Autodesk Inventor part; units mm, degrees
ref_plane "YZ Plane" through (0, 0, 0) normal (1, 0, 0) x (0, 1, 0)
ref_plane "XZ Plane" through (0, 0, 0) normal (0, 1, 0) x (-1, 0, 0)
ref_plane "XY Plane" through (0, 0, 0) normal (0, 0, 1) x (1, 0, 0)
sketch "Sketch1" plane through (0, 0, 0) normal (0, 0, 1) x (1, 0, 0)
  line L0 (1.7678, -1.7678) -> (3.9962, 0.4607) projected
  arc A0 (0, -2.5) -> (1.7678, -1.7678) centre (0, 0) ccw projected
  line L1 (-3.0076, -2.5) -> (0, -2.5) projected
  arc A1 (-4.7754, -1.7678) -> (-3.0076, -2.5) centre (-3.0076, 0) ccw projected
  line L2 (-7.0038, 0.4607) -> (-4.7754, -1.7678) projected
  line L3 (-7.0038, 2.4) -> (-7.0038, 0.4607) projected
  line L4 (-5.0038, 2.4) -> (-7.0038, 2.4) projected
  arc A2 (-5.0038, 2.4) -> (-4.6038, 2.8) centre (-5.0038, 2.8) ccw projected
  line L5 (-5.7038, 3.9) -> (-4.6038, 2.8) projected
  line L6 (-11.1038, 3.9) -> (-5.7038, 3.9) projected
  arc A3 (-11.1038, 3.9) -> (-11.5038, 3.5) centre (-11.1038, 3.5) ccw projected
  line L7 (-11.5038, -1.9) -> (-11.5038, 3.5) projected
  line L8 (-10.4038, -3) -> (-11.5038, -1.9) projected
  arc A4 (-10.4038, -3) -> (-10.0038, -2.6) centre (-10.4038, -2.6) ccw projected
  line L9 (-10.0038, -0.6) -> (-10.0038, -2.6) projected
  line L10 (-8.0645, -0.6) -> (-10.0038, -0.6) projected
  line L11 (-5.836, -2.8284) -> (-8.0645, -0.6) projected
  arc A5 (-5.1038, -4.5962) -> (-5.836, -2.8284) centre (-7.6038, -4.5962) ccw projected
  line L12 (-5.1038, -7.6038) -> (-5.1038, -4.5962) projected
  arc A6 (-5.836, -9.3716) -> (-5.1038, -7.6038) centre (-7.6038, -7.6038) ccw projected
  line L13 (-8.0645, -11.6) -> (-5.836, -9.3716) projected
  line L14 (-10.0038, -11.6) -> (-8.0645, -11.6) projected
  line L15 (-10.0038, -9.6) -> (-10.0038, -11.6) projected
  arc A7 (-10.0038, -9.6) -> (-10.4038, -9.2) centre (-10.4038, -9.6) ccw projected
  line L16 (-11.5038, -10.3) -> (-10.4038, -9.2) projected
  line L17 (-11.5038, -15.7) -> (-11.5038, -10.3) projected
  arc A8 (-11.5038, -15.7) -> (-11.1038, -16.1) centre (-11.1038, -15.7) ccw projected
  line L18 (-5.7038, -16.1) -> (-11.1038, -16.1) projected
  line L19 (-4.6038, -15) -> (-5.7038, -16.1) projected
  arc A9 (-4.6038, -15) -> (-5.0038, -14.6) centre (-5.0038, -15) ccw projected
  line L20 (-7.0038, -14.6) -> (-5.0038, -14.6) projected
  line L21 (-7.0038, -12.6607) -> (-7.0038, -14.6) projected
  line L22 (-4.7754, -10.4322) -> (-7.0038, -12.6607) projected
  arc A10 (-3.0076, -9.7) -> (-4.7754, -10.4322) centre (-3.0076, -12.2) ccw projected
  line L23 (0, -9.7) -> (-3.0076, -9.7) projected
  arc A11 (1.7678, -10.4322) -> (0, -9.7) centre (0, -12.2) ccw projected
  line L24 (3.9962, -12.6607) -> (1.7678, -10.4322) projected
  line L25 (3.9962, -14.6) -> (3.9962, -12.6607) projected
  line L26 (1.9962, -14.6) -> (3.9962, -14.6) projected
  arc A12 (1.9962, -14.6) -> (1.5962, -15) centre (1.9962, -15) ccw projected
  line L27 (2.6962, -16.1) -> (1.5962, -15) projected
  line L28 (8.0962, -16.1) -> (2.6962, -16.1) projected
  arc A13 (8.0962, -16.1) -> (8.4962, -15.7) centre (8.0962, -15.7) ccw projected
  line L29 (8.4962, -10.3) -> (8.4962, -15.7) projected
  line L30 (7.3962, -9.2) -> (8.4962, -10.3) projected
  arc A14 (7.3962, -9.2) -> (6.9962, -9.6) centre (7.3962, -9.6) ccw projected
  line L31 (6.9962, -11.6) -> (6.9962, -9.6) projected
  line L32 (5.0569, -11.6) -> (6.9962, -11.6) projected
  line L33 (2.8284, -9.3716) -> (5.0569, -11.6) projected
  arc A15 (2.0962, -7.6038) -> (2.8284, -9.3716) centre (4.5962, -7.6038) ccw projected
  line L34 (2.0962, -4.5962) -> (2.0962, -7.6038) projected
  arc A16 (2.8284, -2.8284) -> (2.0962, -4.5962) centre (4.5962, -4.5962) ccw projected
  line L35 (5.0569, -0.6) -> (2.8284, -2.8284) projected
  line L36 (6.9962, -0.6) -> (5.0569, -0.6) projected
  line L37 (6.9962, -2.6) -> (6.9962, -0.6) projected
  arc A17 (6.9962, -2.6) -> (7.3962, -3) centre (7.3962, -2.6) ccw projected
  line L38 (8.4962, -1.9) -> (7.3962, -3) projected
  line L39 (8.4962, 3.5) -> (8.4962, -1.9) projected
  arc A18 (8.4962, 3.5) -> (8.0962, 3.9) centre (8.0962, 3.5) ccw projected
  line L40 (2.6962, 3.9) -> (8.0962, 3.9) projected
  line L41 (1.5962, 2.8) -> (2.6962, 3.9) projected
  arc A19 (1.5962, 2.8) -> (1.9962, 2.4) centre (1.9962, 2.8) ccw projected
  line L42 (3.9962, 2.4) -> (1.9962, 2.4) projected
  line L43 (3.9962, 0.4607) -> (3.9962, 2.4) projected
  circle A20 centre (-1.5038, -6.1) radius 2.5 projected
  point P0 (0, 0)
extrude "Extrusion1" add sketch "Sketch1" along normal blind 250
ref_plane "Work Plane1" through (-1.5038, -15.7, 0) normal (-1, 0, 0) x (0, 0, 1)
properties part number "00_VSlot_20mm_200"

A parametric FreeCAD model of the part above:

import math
import FreeCAD as App
import Part
import Sketcher
Q = App.Units.Quantity

doc = App.newDocument("Part")
body = doc.addObject("PartDesign::Body", "Body")

# Sketch on XY plane
sketch1 = body.newObject("Sketcher::SketchObject", "Sketch")
sketch1.AttachmentSupport = (doc.getObject("XY_Plane"), [""])
sketch1.MapMode = "FlatFace"
sketch1.addGeometry(Part.LineSegment(App.Vector(3.9962, 0.4607, 0), App.Vector(1.7678, -1.7678, 0)), False)
sketch1.addGeometry(Part.ArcOfCircle(Part.Circle(App.Vector(0, 0, 0), App.Vector(0, 0, 1), 2.5), math.radians(-90), math.radians(-45)), False)
sketch1.addGeometry(Part.LineSegment(App.Vector(0, -2.5, 0), App.Vector(-3.0076, -2.5, 0)), False)
sketch1.addGeometry(Part.ArcOfCircle(Part.Circle(App.Vector(-3.0076, 0, 0), App.Vector(0, 0, 1), 2.500047), math.radians(-135), math.radians(-90)), False)
sketch1.addGeometry(Part.LineSegment(App.Vector(-4.7754, -1.7678, 0), App.Vector(-7.0038, 0.4607, 0)), False)
sketch1.addGeometry(Part.LineSegment(App.Vector(-7.0038, 0.4607, 0), App.Vector(-7.0038, 2.4, 0)), False)
sketch1.addGeometry(Part.LineSegment(App.Vector(-7.0038, 2.4, 0), App.Vector(-5.0038, 2.4, 0)), False)
sketch1.addGeometry(Part.ArcOfCircle(Part.Circle(App.Vector(-5.0038, 2.8, 0), App.Vector(0, 0, 1), 0.4), math.radians(-90), math.radians(0)), False)
sketch1.addGeometry(Part.LineSegment(App.Vector(-4.6038, 2.8, 0), App.Vector(-5.7038, 3.9, 0)), False)
sketch1.addGeometry(Part.LineSegment(App.Vector(-5.7038, 3.9, 0), App.Vector(-11.1038, 3.9, 0)), False)
sketch1.addGeometry(Part.ArcOfCircle(Part.Circle(App.Vector(-11.1038, 3.5, 0), App.Vector(0, 0, 1), 0.4), math.radians(90), math.radians(180)), False)
sketch1.addGeometry(Part.LineSegment(App.Vector(-11.5038, 3.5, 0), App.Vector(-11.5038, -1.9, 0)), False)
sketch1.addGeometry(Part.LineSegment(App.Vector(-11.5038, -1.9, 0), App.Vector(-10.4038, -3, 0)), False)
sketch1.addGeometry(Part.ArcOfCircle(Part.Circle(App.Vector(-10.4038, -2.6, 0), App.Vector(0, 0, 1), 0.4), math.radians(-90), math.radians(0)), False)
sketch1.addGeometry(Part.LineSegment(App.Vector(-10.0038, -2.6, 0), App.Vector(-10.0038, -0.6, 0)), False)
sketch1.addGeometry(Part.LineSegment(App.Vector(-10.0038, -0.6, 0), App.Vector(-8.0645, -0.6, 0)), False)
sketch1.addGeometry(Part.LineSegment(App.Vector(-8.0645, -0.6, 0), App.Vector(-5.836, -2.8284, 0)), False)
sketch1.addGeometry(Part.ArcOfCircle(Part.Circle(App.Vector(-7.6038, -4.5962, 0), App.Vector(0, 0, 1), 2.5), math.radians(0), math.radians(45)), False)
sketch1.addGeometry(Part.LineSegment(App.Vector(-5.1038, -4.5962, 0), App.Vector(-5.1038, -7.6038, 0)), False)
sketch1.addGeometry(Part.ArcOfCircle(Part.Circle(App.Vector(-7.6038, -7.6038, 0), App.Vector(0, 0, 1), 2.500047), math.radians(-45), math.radians(0)), False)
sketch1.addGeometry(Part.LineSegment(App.Vector(-5.836, -9.3716, 0), App.Vector(-8.0645, -11.6, 0)), False)
sketch1.addGeometry(Part.LineSegment(App.Vector(-8.0645, -11.6, 0), App.Vector(-10.0038, -11.6, 0)), False)
sketch1.addGeometry(Part.LineSegment(App.Vector(-10.0038, -11.6, 0), App.Vector(-10.0038, -9.6, 0)), False)
sketch1.addGeometry(Part.ArcOfCircle(Part.Circle(App.Vector(-10.4038, -9.6, 0), App.Vector(0, 0, 1), 0.4), math.radians(0), math.radians(90)), False)
sketch1.addGeometry(Part.LineSegment(App.Vector(-10.4038, -9.2, 0), App.Vector(-11.5038, -10.3, 0)), False)
sketch1.addGeometry(Part.LineSegment(App.Vector(-11.5038, -10.3, 0), App.Vector(-11.5038, -15.7, 0)), False)
sketch1.addGeometry(Part.ArcOfCircle(Part.Circle(App.Vector(-11.1038, -15.7, 0), App.Vector(0, 0, 1), 0.4), math.radians(180), math.radians(270)), False)
sketch1.addGeometry(Part.LineSegment(App.Vector(-11.1038, -16.1, 0), App.Vector(-5.7038, -16.1, 0)), False)
sketch1.addGeometry(Part.LineSegment(App.Vector(-5.7038, -16.1, 0), App.Vector(-4.6038, -15, 0)), False)
sketch1.addGeometry(Part.ArcOfCircle(Part.Circle(App.Vector(-5.0038, -15, 0), App.Vector(0, 0, 1), 0.4), math.radians(0), math.radians(90)), False)
sketch1.addGeometry(Part.LineSegment(App.Vector(-5.0038, -14.6, 0), App.Vector(-7.0038, -14.6, 0)), False)
sketch1.addGeometry(Part.LineSegment(App.Vector(-7.0038, -14.6, 0), App.Vector(-7.0038, -12.6607, 0)), False)
sketch1.addGeometry(Part.LineSegment(App.Vector(-7.0038, -12.6607, 0), App.Vector(-4.7754, -10.4322, 0)), False)
sketch1.addGeometry(Part.ArcOfCircle(Part.Circle(App.Vector(-3.0076, -12.2, 0), App.Vector(0, 0, 1), 2.5), math.radians(90), math.radians(135)), False)
sketch1.addGeometry(Part.LineSegment(App.Vector(-3.0076, -9.7, 0), App.Vector(0, -9.7, 0)), False)
sketch1.addGeometry(Part.ArcOfCircle(Part.Circle(App.Vector(0, -12.2, 0), App.Vector(0, 0, 1), 2.500047), math.radians(45), math.radians(90)), False)
sketch1.addGeometry(Part.LineSegment(App.Vector(1.7678, -10.4322, 0), App.Vector(3.9962, -12.6607, 0)), False)
sketch1.addGeometry(Part.LineSegment(App.Vector(3.9962, -12.6607, 0), App.Vector(3.9962, -14.6, 0)), False)
sketch1.addGeometry(Part.LineSegment(App.Vector(3.9962, -14.6, 0), App.Vector(1.9962, -14.6, 0)), False)
sketch1.addGeometry(Part.ArcOfCircle(Part.Circle(App.Vector(1.9962, -15, 0), App.Vector(0, 0, 1), 0.4), math.radians(90), math.radians(180)), False)
sketch1.addGeometry(Part.LineSegment(App.Vector(1.5962, -15, 0), App.Vector(2.6962, -16.1, 0)), False)
sketch1.addGeometry(Part.LineSegment(App.Vector(2.6962, -16.1, 0), App.Vector(8.0962, -16.1, 0)), False)
sketch1.addGeometry(Part.ArcOfCircle(Part.Circle(App.Vector(8.0962, -15.7, 0), App.Vector(0, 0, 1), 0.4), math.radians(-90), math.radians(0)), False)
sketch1.addGeometry(Part.LineSegment(App.Vector(8.4962, -15.7, 0), App.Vector(8.4962, -10.3, 0)), False)
sketch1.addGeometry(Part.LineSegment(App.Vector(8.4962, -10.3, 0), App.Vector(7.3962, -9.2, 0)), False)
sketch1.addGeometry(Part.ArcOfCircle(Part.Circle(App.Vector(7.3962, -9.6, 0), App.Vector(0, 0, 1), 0.4), math.radians(90), math.radians(180)), False)
sketch1.addGeometry(Part.LineSegment(App.Vector(6.9962, -9.6, 0), App.Vector(6.9962, -11.6, 0)), False)
sketch1.addGeometry(Part.LineSegment(App.Vector(6.9962, -11.6, 0), App.Vector(5.0569, -11.6, 0)), False)
sketch1.addGeometry(Part.LineSegment(App.Vector(5.0569, -11.6, 0), App.Vector(2.8284, -9.3716, 0)), False)
sketch1.addGeometry(Part.ArcOfCircle(Part.Circle(App.Vector(4.5962, -7.6038, 0), App.Vector(0, 0, 1), 2.5), math.radians(180), math.radians(225)), False)
sketch1.addGeometry(Part.LineSegment(App.Vector(2.0962, -7.6038, 0), App.Vector(2.0962, -4.5962, 0)), False)
sketch1.addGeometry(Part.ArcOfCircle(Part.Circle(App.Vector(4.5962, -4.5962, 0), App.Vector(0, 0, 1), 2.500047), math.radians(135), math.radians(180)), False)
sketch1.addGeometry(Part.LineSegment(App.Vector(2.8284, -2.8284, 0), App.Vector(5.0569, -0.6, 0)), False)
sketch1.addGeometry(Part.LineSegment(App.Vector(5.0569, -0.6, 0), App.Vector(6.9962, -0.6, 0)), False)
sketch1.addGeometry(Part.LineSegment(App.Vector(6.9962, -0.6, 0), App.Vector(6.9962, -2.6, 0)), False)
sketch1.addGeometry(Part.ArcOfCircle(Part.Circle(App.Vector(7.3962, -2.6, 0), App.Vector(0, 0, 1), 0.4), math.radians(180), math.radians(270)), False)
sketch1.addGeometry(Part.LineSegment(App.Vector(7.3962, -3, 0), App.Vector(8.4962, -1.9, 0)), False)
sketch1.addGeometry(Part.LineSegment(App.Vector(8.4962, -1.9, 0), App.Vector(8.4962, 3.5, 0)), False)
sketch1.addGeometry(Part.ArcOfCircle(Part.Circle(App.Vector(8.0962, 3.5, 0), App.Vector(0, 0, 1), 0.4), math.radians(0), math.radians(90)), False)
sketch1.addGeometry(Part.LineSegment(App.Vector(8.0962, 3.9, 0), App.Vector(2.6962, 3.9, 0)), False)
sketch1.addGeometry(Part.LineSegment(App.Vector(2.6962, 3.9, 0), App.Vector(1.5962, 2.8, 0)), False)
sketch1.addGeometry(Part.ArcOfCircle(Part.Circle(App.Vector(1.9962, 2.8, 0), App.Vector(0, 0, 1), 0.4), math.radians(180), math.radians(270)), False)
sketch1.addGeometry(Part.LineSegment(App.Vector(1.9962, 2.4, 0), App.Vector(3.9962, 2.4, 0)), False)
sketch1.addGeometry(Part.LineSegment(App.Vector(3.9962, 2.4, 0), App.Vector(3.9962, 0.4607, 0)), False)
sketch1.addGeometry(Part.Circle(App.Vector(-1.5038, -6.1, 0), App.Vector(0, 0, 1), 2.5), False)
sketch1.addConstraint(Sketcher.Constraint("Tangent", 0, 2, 1, 2))
sketch1.addConstraint(Sketcher.Constraint("Tangent", 1, 1, 2, 1))
sketch1.addConstraint(Sketcher.Constraint("Tangent", 2, 2, 3, 2))
sketch1.addConstraint(Sketcher.Constraint("Tangent", 3, 1, 4, 1))
sketch1.addConstraint(Sketcher.Constraint("Coincident", 4, 2, 5, 1))
sketch1.addConstraint(Sketcher.Constraint("Coincident", 5, 2, 6, 1))
sketch1.addConstraint(Sketcher.Constraint("Tangent", 6, 2, 7, 1))
sketch1.addConstraint(Sketcher.Constraint("Coincident", 7, 2, 8, 1))
sketch1.addConstraint(Sketcher.Constraint("Coincident", 8, 2, 9, 1))
sketch1.addConstraint(Sketcher.Constraint("Tangent", 9, 2, 10, 1))
sketch1.addConstraint(Sketcher.Constraint("Tangent", 10, 2, 11, 1))
sketch1.addConstraint(Sketcher.Constraint("Coincident", 11, 2, 12, 1))
sketch1.addConstraint(Sketcher.Constraint("Coincident", 12, 2, 13, 1))
sketch1.addConstraint(Sketcher.Constraint("Tangent", 13, 2, 14, 1))
sketch1.addConstraint(Sketcher.Constraint("Coincident", 14, 2, 15, 1))
sketch1.addConstraint(Sketcher.Constraint("Coincident", 15, 2, 16, 1))
sketch1.addConstraint(Sketcher.Constraint("Tangent", 16, 2, 17, 2))
sketch1.addConstraint(Sketcher.Constraint("Tangent", 17, 1, 18, 1))
sketch1.addConstraint(Sketcher.Constraint("Tangent", 18, 2, 19, 2))
sketch1.addConstraint(Sketcher.Constraint("Tangent", 19, 1, 20, 1))
sketch1.addConstraint(Sketcher.Constraint("Coincident", 20, 2, 21, 1))
sketch1.addConstraint(Sketcher.Constraint("Coincident", 21, 2, 22, 1))
sketch1.addConstraint(Sketcher.Constraint("Tangent", 22, 2, 23, 1))
sketch1.addConstraint(Sketcher.Constraint("Coincident", 23, 2, 24, 1))
sketch1.addConstraint(Sketcher.Constraint("Coincident", 24, 2, 25, 1))
sketch1.addConstraint(Sketcher.Constraint("Tangent", 25, 2, 26, 1))
sketch1.addConstraint(Sketcher.Constraint("Tangent", 26, 2, 27, 1))
sketch1.addConstraint(Sketcher.Constraint("Coincident", 27, 2, 28, 1))
sketch1.addConstraint(Sketcher.Constraint("Coincident", 28, 2, 29, 1))
sketch1.addConstraint(Sketcher.Constraint("Tangent", 29, 2, 30, 1))
sketch1.addConstraint(Sketcher.Constraint("Coincident", 30, 2, 31, 1))
sketch1.addConstraint(Sketcher.Constraint("Coincident", 31, 2, 32, 1))
sketch1.addConstraint(Sketcher.Constraint("Tangent", 32, 2, 33, 2))
sketch1.addConstraint(Sketcher.Constraint("Tangent", 33, 1, 34, 1))
sketch1.addConstraint(Sketcher.Constraint("Tangent", 34, 2, 35, 2))
sketch1.addConstraint(Sketcher.Constraint("Tangent", 35, 1, 36, 1))
sketch1.addConstraint(Sketcher.Constraint("Coincident", 36, 2, 37, 1))
sketch1.addConstraint(Sketcher.Constraint("Coincident", 37, 2, 38, 1))
sketch1.addConstraint(Sketcher.Constraint("Tangent", 38, 2, 39, 1))
sketch1.addConstraint(Sketcher.Constraint("Coincident", 39, 2, 40, 1))
sketch1.addConstraint(Sketcher.Constraint("Coincident", 40, 2, 41, 1))
sketch1.addConstraint(Sketcher.Constraint("Tangent", 41, 2, 42, 1))
sketch1.addConstraint(Sketcher.Constraint("Tangent", 42, 2, 43, 1))
sketch1.addConstraint(Sketcher.Constraint("Coincident", 43, 2, 44, 1))
sketch1.addConstraint(Sketcher.Constraint("Coincident", 44, 2, 45, 1))
sketch1.addConstraint(Sketcher.Constraint("Tangent", 45, 2, 46, 1))
sketch1.addConstraint(Sketcher.Constraint("Coincident", 46, 2, 47, 1))
sketch1.addConstraint(Sketcher.Constraint("Coincident", 47, 2, 48, 1))
sketch1.addConstraint(Sketcher.Constraint("Tangent", 48, 2, 49, 2))
sketch1.addConstraint(Sketcher.Constraint("Tangent", 49, 1, 50, 1))
sketch1.addConstraint(Sketcher.Constraint("Tangent", 50, 2, 51, 2))
sketch1.addConstraint(Sketcher.Constraint("Tangent", 51, 1, 52, 1))
sketch1.addConstraint(Sketcher.Constraint("Coincident", 52, 2, 53, 1))
sketch1.addConstraint(Sketcher.Constraint("Coincident", 53, 2, 54, 1))
sketch1.addConstraint(Sketcher.Constraint("Tangent", 54, 2, 55, 1))
sketch1.addConstraint(Sketcher.Constraint("Coincident", 55, 2, 56, 1))
sketch1.addConstraint(Sketcher.Constraint("Coincident", 56, 2, 57, 1))
sketch1.addConstraint(Sketcher.Constraint("Tangent", 57, 2, 58, 1))
sketch1.addConstraint(Sketcher.Constraint("Tangent", 58, 2, 59, 1))
sketch1.addConstraint(Sketcher.Constraint("Coincident", 59, 2, 60, 1))
sketch1.addConstraint(Sketcher.Constraint("Coincident", 60, 2, 61, 1))
sketch1.addConstraint(Sketcher.Constraint("Tangent", 61, 2, 62, 1))
sketch1.addConstraint(Sketcher.Constraint("Coincident", 62, 2, 63, 1))
sketch1.addConstraint(Sketcher.Constraint("Coincident", 63, 2, 0, 1))
sketch1.addConstraint(Sketcher.Constraint("Horizontal", 2))
sketch1.addConstraint(Sketcher.Constraint("Vertical", 5))
sketch1.addConstraint(Sketcher.Constraint("Horizontal", 6))
sketch1.addConstraint(Sketcher.Constraint("Horizontal", 9))
sketch1.addConstraint(Sketcher.Constraint("Vertical", 11))
sketch1.addConstraint(Sketcher.Constraint("Vertical", 14))
sketch1.addConstraint(Sketcher.Constraint("Horizontal", 15))
sketch1.addConstraint(Sketcher.Constraint("Vertical", 18))
sketch1.addConstraint(Sketcher.Constraint("Horizontal", 21))
sketch1.addConstraint(Sketcher.Constraint("Vertical", 22))
sketch1.addConstraint(Sketcher.Constraint("Vertical", 25))
sketch1.addConstraint(Sketcher.Constraint("Horizontal", 27))
sketch1.addConstraint(Sketcher.Constraint("Horizontal", 30))
sketch1.addConstraint(Sketcher.Constraint("Vertical", 31))
sketch1.addConstraint(Sketcher.Constraint("Horizontal", 34))
sketch1.addConstraint(Sketcher.Constraint("Vertical", 37))
sketch1.addConstraint(Sketcher.Constraint("Horizontal", 38))
sketch1.addConstraint(Sketcher.Constraint("Horizontal", 41))
sketch1.addConstraint(Sketcher.Constraint("Vertical", 43))
sketch1.addConstraint(Sketcher.Constraint("Vertical", 46))
sketch1.addConstraint(Sketcher.Constraint("Horizontal", 47))
sketch1.addConstraint(Sketcher.Constraint("Vertical", 50))
sketch1.addConstraint(Sketcher.Constraint("Horizontal", 53))
sketch1.addConstraint(Sketcher.Constraint("Vertical", 54))
sketch1.addConstraint(Sketcher.Constraint("Vertical", 57))
sketch1.addConstraint(Sketcher.Constraint("Horizontal", 59))
sketch1.addConstraint(Sketcher.Constraint("Horizontal", 62))
sketch1.addConstraint(Sketcher.Constraint("Vertical", 63))
sketch1.addConstraint(Sketcher.Constraint("Coincident", 1, 3, -1, 1))
sketch1.addConstraint(Sketcher.Constraint("Equal", 1, 3))
sketch1.addConstraint(Sketcher.Constraint("Equal", 7, 10))
sketch1.addConstraint(Sketcher.Constraint("Equal", 10, 13))
sketch1.addConstraint(Sketcher.Constraint("Equal", 3, 17))
sketch1.addConstraint(Sketcher.Constraint("Equal", 17, 19))
sketch1.addConstraint(Sketcher.Constraint("Equal", 13, 23))
sketch1.addConstraint(Sketcher.Constraint("Equal", 23, 26))
sketch1.addConstraint(Sketcher.Constraint("Equal", 26, 29))
sketch1.addConstraint(Sketcher.Constraint("Equal", 19, 33))
sketch1.addConstraint(Sketcher.Constraint("Equal", 33, 35))
sketch1.addConstraint(Sketcher.Constraint("Equal", 29, 39))
sketch1.addConstraint(Sketcher.Constraint("Equal", 39, 42))
sketch1.addConstraint(Sketcher.Constraint("Equal", 42, 45))
sketch1.addConstraint(Sketcher.Constraint("Equal", 35, 49))
sketch1.addConstraint(Sketcher.Constraint("Equal", 49, 51))
sketch1.addConstraint(Sketcher.Constraint("Equal", 45, 55))
sketch1.addConstraint(Sketcher.Constraint("Equal", 55, 58))
sketch1.addConstraint(Sketcher.Constraint("Equal", 58, 61))
sketch1.addConstraint(Sketcher.Constraint("Equal", 51, 64))
sketch1.addConstraint(Sketcher.Constraint("PointOnObject", 35, 3, -2))
sketch1.addConstraint(Sketcher.Constraint("Perpendicular", 0, 4))
sketch1.addConstraint(Sketcher.Constraint("Parallel", 4, 8))
sketch1.addConstraint(Sketcher.Constraint("Parallel", 8, 12))
sketch1.addConstraint(Sketcher.Constraint("Parallel", 12, 16))
sketch1.addConstraint(Sketcher.Constraint("Perpendicular", 16, 20))
sketch1.addConstraint(Sketcher.Constraint("Parallel", 20, 24))
sketch1.addConstraint(Sketcher.Constraint("Parallel", 24, 28))
sketch1.addConstraint(Sketcher.Constraint("Parallel", 28, 32))
sketch1.addConstraint(Sketcher.Constraint("Perpendicular", 32, 36))
sketch1.addConstraint(Sketcher.Constraint("Parallel", 36, 40))
sketch1.addConstraint(Sketcher.Constraint("Parallel", 40, 44))
sketch1.addConstraint(Sketcher.Constraint("Parallel", 44, 48))
sketch1.addConstraint(Sketcher.Constraint("Perpendicular", 48, 52))
sketch1.addConstraint(Sketcher.Constraint("Parallel", 52, 56))
sketch1.addConstraint(Sketcher.Constraint("Parallel", 56, 60))
sketch1.addConstraint(Sketcher.Constraint("Horizontal", 29, 3, 39, 3))
sketch1.addConstraint(Sketcher.Constraint("Horizontal", 26, 3, 42, 3))
sketch1.addConstraint(Sketcher.Constraint("Horizontal", 23, 3, 45, 3))
sketch1.addConstraint(Sketcher.Constraint("Horizontal", 19, 3, 49, 3))
sketch1.addConstraint(Sketcher.Constraint("Horizontal", 17, 3, 51, 3))
sketch1.addConstraint(Sketcher.Constraint("Horizontal", 13, 3, 55, 3))
sketch1.addConstraint(Sketcher.Constraint("Horizontal", 10, 3, 58, 3))
sketch1.addConstraint(Sketcher.Constraint("Horizontal", 7, 3, 61, 3))
sketch1.addConstraint(Sketcher.Constraint("Horizontal", 0, 2, 3, 1))
sketch1.addConstraint(Sketcher.Constraint("Horizontal", 61, 3, 7, 2))
sketch1.addConstraint(Sketcher.Constraint("Horizontal", 39, 3, 28, 2))
sketch1.addConstraint(Sketcher.Constraint("Horizontal", 31, 2, 36, 2))
sketch1.addConstraint(Sketcher.Constraint("Horizontal", 28, 2, 39, 2))
sketch1.addConstraint(Sketcher.Constraint("Horizontal", 24, 2, 43, 2))
sketch1.addConstraint(Sketcher.Constraint("Horizontal", 21, 2, 46, 2))
sketch1.addConstraint(Sketcher.Constraint("Horizontal", 15, 2, 52, 2))
sketch1.addConstraint(Sketcher.Constraint("Horizontal", 11, 2, 56, 2))
sketch1.addConstraint(Sketcher.Constraint("Horizontal", 7, 2, 60, 2))
sketch1.addConstraint(Sketcher.Constraint("Horizontal", 4, 2, 63, 2))
sketch1.addConstraint(Sketcher.Constraint("Vertical", 13, 3, 23, 3))
sketch1.addConstraint(Sketcher.Constraint("Vertical", 10, 3, 26, 3))
sketch1.addConstraint(Sketcher.Constraint("Vertical", 7, 3, 29, 3))
sketch1.addConstraint(Sketcher.Constraint("Vertical", 3, 3, 33, 3))
sketch1.addConstraint(Sketcher.Constraint("Vertical", 45, 3, 55, 3))
sketch1.addConstraint(Sketcher.Constraint("Vertical", 42, 3, 58, 3))
sketch1.addConstraint(Sketcher.Constraint("Vertical", 39, 3, 61, 3))
sketch1.addConstraint(Sketcher.Constraint("Vertical", 23, 3, 12, 2))
sketch1.addConstraint(Sketcher.Constraint("Vertical", 15, 2, 20, 2))
sketch1.addConstraint(Sketcher.Constraint("Vertical", 12, 2, 23, 2))
sketch1.addConstraint(Sketcher.Constraint("Vertical", 8, 2, 27, 2))
sketch1.addConstraint(Sketcher.Constraint("Vertical", 5, 2, 30, 2))
sketch1.addConstraint(Sketcher.Constraint("Vertical", 55, 3, 44, 2))
sketch1.addConstraint(Sketcher.Constraint("Equal", 30, 38))
sketch1.addConstraint(Sketcher.Constraint("Equal", 27, 41))
sketch1.addConstraint(Sketcher.Constraint("Equal", 21, 47))
sketch1.addConstraint(Sketcher.Constraint("Equal", 53, 5))
sketch1.addConstraint(Sketcher.Constraint("Equal", 59, 11))
sketch1.addConstraint(Sketcher.Constraint("Equal", 62, 14))
sketch1.addConstraint(Sketcher.Constraint("Equal", 34, 18))
sketch1.addConstraint(Sketcher.Constraint("Equal", 14, 22))
sketch1.addConstraint(Sketcher.Constraint("Equal", 11, 25))
sketch1.addConstraint(Sketcher.Constraint("Equal", 5, 31))
sketch1.addConstraint(Sketcher.Constraint("Equal", 8, 12))
sketch1.addConstraint(Sketcher.Constraint("Equal", 4, 16))
sketch1.addConstraint(Sketcher.Constraint("Diameter", 64, Q("5 mm")))
sketch1.addConstraint(Sketcher.Constraint("Radius", 7, Q("0.4 mm")))
sketch1.addConstraint(Sketcher.Constraint("DistanceX", 6, 1, 6, 2, Q("2 mm")))
sketch1.addConstraint(Sketcher.Constraint("DistanceX", 9, 2, 9, 1, Q("5.4 mm")))
sketch1.addConstraint(Sketcher.Constraint("DistanceY", 29, 3, -1, 1, Q("15 mm")))
sketch1.addConstraint(Sketcher.Constraint("DistanceY", 12, 2, -1, 1, Q("3 mm")))
sketch1.addConstraint(Sketcher.Constraint("DistanceY", -1, 1, 10, 3, Q("3.5 mm")))
sketch1.addConstraint(Sketcher.Constraint("DistanceY", 64, 3, -1, 1, Q("6.1 mm")))
sketch1.addConstraint(Sketcher.Constraint("DistanceX", 2, 2, 2, 1, Q("3.0076 mm")))
sketch1.addConstraint(Sketcher.Constraint("DistanceX", 64, 3, -1, 1, Q("1.5038 mm")))
pad1 = body.newObject("PartDesign::Pad", "Pad")
pad1.Profile = sketch1
pad1.Length = 250

doc.recompute()
